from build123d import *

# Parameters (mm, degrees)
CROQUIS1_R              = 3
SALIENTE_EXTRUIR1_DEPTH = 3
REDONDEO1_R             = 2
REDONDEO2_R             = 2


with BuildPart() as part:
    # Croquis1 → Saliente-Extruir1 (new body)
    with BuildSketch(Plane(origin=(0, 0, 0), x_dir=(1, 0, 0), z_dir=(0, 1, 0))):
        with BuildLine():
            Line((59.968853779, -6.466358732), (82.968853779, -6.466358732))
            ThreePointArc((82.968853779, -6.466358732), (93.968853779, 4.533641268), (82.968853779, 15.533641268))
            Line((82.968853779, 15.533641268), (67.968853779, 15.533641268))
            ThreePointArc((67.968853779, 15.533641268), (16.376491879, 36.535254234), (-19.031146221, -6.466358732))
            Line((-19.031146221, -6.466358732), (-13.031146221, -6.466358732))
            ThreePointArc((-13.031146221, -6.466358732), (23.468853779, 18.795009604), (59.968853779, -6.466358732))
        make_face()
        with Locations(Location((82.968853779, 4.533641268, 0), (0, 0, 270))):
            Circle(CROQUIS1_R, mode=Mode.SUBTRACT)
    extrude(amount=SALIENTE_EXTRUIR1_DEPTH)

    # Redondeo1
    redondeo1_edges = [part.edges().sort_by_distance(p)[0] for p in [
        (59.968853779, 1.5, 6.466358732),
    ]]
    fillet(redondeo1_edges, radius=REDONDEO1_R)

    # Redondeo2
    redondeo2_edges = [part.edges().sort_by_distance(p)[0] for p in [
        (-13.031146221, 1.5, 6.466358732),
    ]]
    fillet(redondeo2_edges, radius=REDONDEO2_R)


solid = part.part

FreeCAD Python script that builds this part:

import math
import FreeCAD as App
import Part
import Sketcher

V = App.Vector
Q = App.Units.Quantity


def edges_at(feature, points):
    """Names of the edges that pass closest to the given points."""
    edges = feature.Shape.Edges
    near = lambda p: min(range(len(edges)), key=lambda i: edges[i].distToShape(Part.Vertex(*p))[0])
    return sorted({f"Edge{near(p) + 1}" for p in points})

doc = App.newDocument("Part")
body = doc.addObject("PartDesign::Body", "Body")

sketch1 = body.newObject("Sketcher::SketchObject", "Sketch")
sketch1.AttachmentSupport = (doc.getObject("XZ_Plane"), [""])
sketch1.MapMode = "FlatFace"
sketch1.addGeometry([
    Part.LineSegment(V(60, 6.5, 0), V(83, 6.5, 0)),
    Part.ArcOfCircle(Part.Circle(V(83, -4.5, 0), V(0, 0, 1), 11), math.radians(-90), math.radians(90)),
    Part.LineSegment(V(83, -15.5, 0), V(68, -15.5, 0)),
    Part.ArcOfCircle(Part.Circle(V(27.9, 9, 0), V(0, 0, 1), 47), math.radians(-177), math.radians(-32)),
    Part.LineSegment(V(-19, 6.5, 0), V(-13, 6.5, 0)),
    Part.ArcOfCircle(Part.Circle(V(23.5, 20.2, 0), V(0, 0, 1), 39), math.radians(-159), math.radians(-21)),
    Part.Circle(V(83, -4.5, 0), V(0, 0, 1), 3),
], False)
sketch1.addConstraint([
    Sketcher.Constraint("Tangent", 0, 2, 1, 2),
    Sketcher.Constraint("Tangent", 1, 1, 2, 1),
    Sketcher.Constraint("Coincident", 2, 2, 3, 2),
    Sketcher.Constraint("Coincident", 3, 1, 4, 1),
    Sketcher.Constraint("Coincident", 4, 2, 5, 1),
    Sketcher.Constraint("Coincident", 5, 2, 0, 1),
    Sketcher.Constraint("Horizontal", 0),
    Sketcher.Constraint("Horizontal", 2),
    Sketcher.Constraint("Horizontal", 4),
    Sketcher.Constraint("Coincident", 6, 3, 1, 3),
    Sketcher.Constraint("Horizontal", 0, 2, 3, 1),
    Sketcher.Constraint("Diameter", 6, Q("6 mm")),
    Sketcher.Constraint("Radius", 1, Q("11 mm")),
    Sketcher.Constraint("Radius", 3, Q("47 mm")),
    Sketcher.Constraint("Radius", 5, Q("39 mm")),
    Sketcher.Constraint("DistanceX", 0, 1, 0, 2, Q("23 mm")),
    Sketcher.Constraint("DistanceX", 2, 2, 2, 1, Q("15 mm")),
    Sketcher.Constraint("DistanceX", 4, 1, 4, 2, Q("6 mm")),
    Sketcher.Constraint("DistanceX", 3, 1, 2, 2, Q("87 mm")),
    Sketcher.Constraint("DistanceY", 1, 3, -1, 1, Q("4.533641 mm")),
    Sketcher.Constraint("DistanceX", -1, 1, 3, 3, Q("27.898858 mm")),
])
pad1 = body.newObject("PartDesign::Pad", "Pad")
pad1.Profile = sketch1
pad1.Length = 3
pad1.Reversed = True
doc.recompute()

fillet = body.newObject("PartDesign::Fillet", "Fillet")
fillet.Base = (pad1, edges_at(pad1, [(59.969, 1.5, 6.466)]))
fillet.Radius = 2
doc.recompute()

fillet2 = body.newObject("PartDesign::Fillet", "Fillet001")
fillet2.Base = (fillet, edges_at(fillet, [(-13.031, 1.5, 6.466)]))
fillet2.Radius = 2

doc.recompute()
